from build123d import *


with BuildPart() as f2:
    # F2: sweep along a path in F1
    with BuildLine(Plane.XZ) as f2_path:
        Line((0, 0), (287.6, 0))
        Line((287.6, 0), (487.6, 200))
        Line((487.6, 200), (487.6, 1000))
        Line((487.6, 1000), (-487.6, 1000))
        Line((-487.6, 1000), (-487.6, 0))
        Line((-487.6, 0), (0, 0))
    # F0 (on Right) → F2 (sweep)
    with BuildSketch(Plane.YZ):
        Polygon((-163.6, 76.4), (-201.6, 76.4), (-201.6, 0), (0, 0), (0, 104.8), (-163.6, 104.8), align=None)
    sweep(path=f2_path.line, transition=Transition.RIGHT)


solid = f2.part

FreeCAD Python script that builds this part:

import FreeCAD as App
import Part
import Sketcher
Q = App.Units.Quantity


def add_polygon(sketch, points):
    """Adds a closed chain of lines whose ends are joined by coincident constraints."""
    first, n = sketch.GeometryCount, len(points)
    for a, b in zip(points, points[1:] + points[:1]):
        sketch.addGeometry(Part.LineSegment(App.Vector(*a, 0), App.Vector(*b, 0)), False)
    for i in range(n):
        sketch.addConstraint(Sketcher.Constraint("Coincident", first + i, 2, first + (i + 1) % n, 1))

doc = App.newDocument("Part")
body = doc.addObject("PartDesign::Body", "Body")

sketch1 = doc.addObject("Sketcher::SketchObject", "Sketch")
body.addObject(sketch1)
sketch1.AttachmentSupport = (doc.YZ_Plane, [""])
sketch1.MapMode = "FlatFace"
add_polygon(sketch1, [(-163.6, 76.4), (-201.6, 76.4), (-201.6, 0), (0, 0), (0, 104.8), (-163.6, 104.8)])
sketch1.addConstraint([
    Sketcher.Constraint("Horizontal", 0),
    Sketcher.Constraint("Vertical", 1),
    Sketcher.Constraint("Horizontal", 2),
    Sketcher.Constraint("Vertical", 3),
    Sketcher.Constraint("Horizontal", 4),
    Sketcher.Constraint("Vertical", 5),
    Sketcher.Constraint("Coincident", 2, 2, -1, 1),
    Sketcher.Constraint("DistanceX", 0, 2, 0, 1, 38.0),
    Sketcher.Constraint("DistanceX", 2, 1, 2, 2, 201.6),
    Sketcher.Constraint("DistanceY", 1, 2, 1, 1, 76.4),
    Sketcher.Constraint("DistanceY", 3, 1, 3, 2, 104.8),
])

sketch2 = doc.addObject("Sketcher::SketchObject", "Sketch001")
body.addObject(sketch2)
sketch2.AttachmentSupport = (doc.XZ_Plane, [""])
sketch2.MapMode = "FlatFace"
add_polygon(sketch2, [(287.6, 0), (487.6, 200), (487.6, 1000), (-487.6, 1000), (-487.6, 0)])
sketch2.addConstraint([
    Sketcher.Constraint("Vertical", 1),
    Sketcher.Constraint("Horizontal", 2),
    Sketcher.Constraint("Vertical", 3),
    Sketcher.Constraint("Horizontal", 4),
    Sketcher.Constraint("PointOnObject", 3, 2, -1),
    Sketcher.Constraint("DistanceY", 1, 1, 1, 2, 800.0),
    Sketcher.Constraint("DistanceY", 3, 2, 3, 1, 1000.0),
    Sketcher.Constraint("Angle", 0, Q("45 deg")),
    Sketcher.Constraint("DistanceX", 2, 2, 2, 1, 975.2),
    Sketcher.Constraint("DistanceX", -1, 1, 0, 2, 487.6),
])
doc.recompute()

additivepipe = doc.addObject("PartDesign::AdditivePipe", "AdditivePipe")
body.addObject(additivepipe)
additivepipe.Profile = sketch1
additivepipe.Spine = (sketch2, ["Edge1", "Edge2", "Edge3", "Edge4", "Edge5"])
additivepipe.Transition = "Right corner"

doc.recompute()
